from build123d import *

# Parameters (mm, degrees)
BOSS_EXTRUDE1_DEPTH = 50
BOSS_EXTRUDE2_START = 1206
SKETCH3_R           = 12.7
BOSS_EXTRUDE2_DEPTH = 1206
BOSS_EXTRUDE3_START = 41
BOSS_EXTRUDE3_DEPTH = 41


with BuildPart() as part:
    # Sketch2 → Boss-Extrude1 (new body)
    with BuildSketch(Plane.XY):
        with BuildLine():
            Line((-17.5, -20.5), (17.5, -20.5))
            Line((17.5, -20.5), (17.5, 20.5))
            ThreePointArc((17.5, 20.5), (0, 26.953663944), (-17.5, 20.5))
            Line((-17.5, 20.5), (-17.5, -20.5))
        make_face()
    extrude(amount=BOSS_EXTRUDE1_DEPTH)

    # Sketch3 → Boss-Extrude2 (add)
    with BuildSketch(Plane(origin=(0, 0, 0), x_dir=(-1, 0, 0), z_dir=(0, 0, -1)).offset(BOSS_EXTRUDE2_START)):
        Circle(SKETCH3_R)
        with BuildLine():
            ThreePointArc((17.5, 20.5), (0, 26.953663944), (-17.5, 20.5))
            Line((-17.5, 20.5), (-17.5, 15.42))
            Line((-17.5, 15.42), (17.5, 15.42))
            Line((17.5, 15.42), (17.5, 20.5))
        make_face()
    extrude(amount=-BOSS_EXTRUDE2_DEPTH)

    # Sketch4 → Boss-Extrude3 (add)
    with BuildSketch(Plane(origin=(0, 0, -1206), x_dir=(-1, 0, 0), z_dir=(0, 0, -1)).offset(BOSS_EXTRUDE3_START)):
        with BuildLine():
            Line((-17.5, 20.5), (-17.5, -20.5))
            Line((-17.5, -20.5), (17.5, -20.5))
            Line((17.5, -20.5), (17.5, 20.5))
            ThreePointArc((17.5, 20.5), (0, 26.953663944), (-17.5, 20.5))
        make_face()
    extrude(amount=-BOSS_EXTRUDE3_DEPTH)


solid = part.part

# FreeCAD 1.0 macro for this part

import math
import FreeCAD as App
import Part
import Sketcher

V = App.Vector
Q = App.Units.Quantity

doc = App.newDocument("Part")
params = doc.addObject("Spreadsheet::Sheet", "Params")
for row, (alias, value) in enumerate([
    ("sketch1_width", "35 mm"),
    ("sketch1_height", "41 mm"),
    ("pad1_length", "50 mm"),
    ("sketch2_diameter", "25.4 mm"),
    ("sketch2_width", "35 mm"),
    ("sketch2_height", "5.08 mm"),
    ("pad2_length", "1206 mm"),
    ("sketch3_width", "35 mm"),
    ("sketch3_height", "41 mm"),
    ("pad3_length", "41 mm"),
], start=1):
    params.set(f"A{row}", alias)
    params.set(f"B{row}", "=" + value)
    params.setAlias(f"B{row}", alias)

body = doc.addObject("PartDesign::Body", "Body")

sketch1 = body.newObject("Sketcher::SketchObject", "Sketch")
sketch1.AttachmentSupport = (doc.getObject("XY_Plane"), [""])
sketch1.MapMode = "FlatFace"
sketch1.addGeometry(Part.LineSegment(V(-17.5, -20.5, 0), V(17.5, -20.5, 0)), False)
sketch1.addGeometry(Part.LineSegment(V(17.5, -20.5, 0), V(17.5, 20.5, 0)), False)
sketch1.addGeometry(Part.ArcOfCircle(Part.Circle(V(0, 0, 0), V(0, 0, 1), 26.953664), math.radians(49.513988), math.radians(130.486012)), False)
sketch1.addGeometry(Part.LineSegment(V(-17.5, 20.5, 0), V(-17.5, -20.5, 0)), False)
sketch1.addConstraint(Sketcher.Constraint("Coincident", 0, 2, 1, 1))
sketch1.addConstraint(Sketcher.Constraint("Coincident", 1, 2, 2, 1))
sketch1.addConstraint(Sketcher.Constraint("Coincident", 2, 2, 3, 1))
sketch1.addConstraint(Sketcher.Constraint("Coincident", 3, 2, 0, 1))
sketch1.addConstraint(Sketcher.Constraint("Horizontal", 0))
sketch1.addConstraint(Sketcher.Constraint("Vertical", 1))
sketch1.addConstraint(Sketcher.Constraint("Vertical", 3))
sketch1.addConstraint(Sketcher.Constraint("Coincident", 2, 3, -1, 1))
sketch1.addConstraint(Sketcher.Constraint("Symmetric", 0, 2, 2, 2, -1, 1))
sketch1.addConstraint(Sketcher.Constraint("DistanceX", 0, 1, 0, 2, Q("35 mm")))
sketch1.addConstraint(Sketcher.Constraint("DistanceY", 1, 1, 1, 2, Q("41 mm")))
sketch1.setExpression("Constraints[9]", "Params.sketch1_width")
sketch1.setExpression("Constraints[10]", "Params.sketch1_height")
pad1 = body.newObject("PartDesign::Pad", "Pad")
pad1.Profile = sketch1
pad1.setExpression("Length", "Params.pad1_length")

sketch2 = body.newObject("Sketcher::SketchObject", "Sketch001")
sketch2.AttachmentSupport = (doc.getObject("XY_Plane"), [""])
sketch2.MapMode = "FlatFace"
sketch2.AttachmentOffset = App.Placement(V(0, 0, -1206), App.Rotation())
sketch2.addGeometry(Part.Circle(V(0, 0, 0), V(0, 0, 1), 12.7), False)
sketch2.addGeometry(Part.ArcOfCircle(Part.Circle(V(0, 0, 0), V(0, 0, 1), 26.953664), math.radians(49.513988), math.radians(130.486012)), False)
sketch2.addGeometry(Part.LineSegment(V(17.5, 20.5, 0), V(17.5, 15.42, 0)), False)
sketch2.addGeometry(Part.LineSegment(V(17.5, 15.42, 0), V(-17.5, 15.42, 0)), False)
sketch2.addGeometry(Part.LineSegment(V(-17.5, 15.42, 0), V(-17.5, 20.5, 0)), False)
sketch2.addConstraint(Sketcher.Constraint("Coincident", 1, 1, 2, 1))
sketch2.addConstraint(Sketcher.Constraint("Coincident", 2, 2, 3, 1))
sketch2.addConstraint(Sketcher.Constraint("Coincident", 3, 2, 4, 1))
sketch2.addConstraint(Sketcher.Constraint("Coincident", 4, 2, 1, 2))
sketch2.addConstraint(Sketcher.Constraint("Vertical", 2))
sketch2.addConstraint(Sketcher.Constraint("Horizontal", 3))
sketch2.addConstraint(Sketcher.Constraint("Vertical", 4))
sketch2.addConstraint(Sketcher.Constraint("Coincident", 0, 3, -1, 1))
sketch2.addConstraint(Sketcher.Constraint("Coincident", 1, 3, -1, 1))
sketch2.addConstraint(Sketcher.Constraint("Horizontal", 1, 1, 4, 2))
sketch2.addConstraint(Sketcher.Constraint("Diameter", 0, Q("25.4 mm")))
sketch2.addConstraint(Sketcher.Constraint("DistanceX", 3, 2, 3, 1, Q("35 mm")))
sketch2.addConstraint(Sketcher.Constraint("DistanceY", 2, 2, 2, 1, Q("5.08 mm")))
sketch2.addConstraint(Sketcher.Constraint("DistanceY", -1, 1, 1, 1, Q("20.5 mm")))
sketch2.setExpression("Constraints[10]", "Params.sketch2_diameter")
sketch2.setExpression("Constraints[11]", "Params.sketch2_width")
sketch2.setExpression("Constraints[12]", "Params.sketch2_height")
pad2 = body.newObject("PartDesign::Pad", "Pad001")
pad2.Profile = sketch2
pad2.setExpression("Length", "Params.pad2_length")

sketch3 = body.newObject("Sketcher::SketchObject", "Sketch002")
sketch3.AttachmentSupport = (doc.getObject("XY_Plane"), [""])
sketch3.MapMode = "FlatFace"
sketch3.AttachmentOffset = App.Placement(V(0, 0, -1247), App.Rotation())
sketch3.addGeometry(Part.LineSegment(V(17.5, 20.5, 0), V(17.5, -20.5, 0)), False)
sketch3.addGeometry(Part.LineSegment(V(17.5, -20.5, 0), V(-17.5, -20.5, 0)), False)
sketch3.addGeometry(Part.LineSegment(V(-17.5, -20.5, 0), V(-17.5, 20.5, 0)), False)
sketch3.addGeometry(Part.ArcOfCircle(Part.Circle(V(0, 0, 0), V(0, 0, 1), 26.953664), math.radians(49.513988), math.radians(130.486012)), False)
sketch3.addConstraint(Sketcher.Constraint("Coincident", 0, 2, 1, 1))
sketch3.addConstraint(Sketcher.Constraint("Coincident", 1, 2, 2, 1))
sketch3.addConstraint(Sketcher.Constraint("Coincident", 2, 2, 3, 2))
sketch3.addConstraint(Sketcher.Constraint("Coincident", 3, 1, 0, 1))
sketch3.addConstraint(Sketcher.Constraint("Vertical", 0))
sketch3.addConstraint(Sketcher.Constraint("Horizontal", 1))
sketch3.addConstraint(Sketcher.Constraint("Vertical", 2))
sketch3.addConstraint(Sketcher.Constraint("Coincident", 3, 3, -1, 1))
sketch3.addConstraint(Sketcher.Constraint("Symmetric", 0, 2, 2, 2, -1, 1))
sketch3.addConstraint(Sketcher.Constraint("DistanceX", 1, 2, 1, 1, Q("35 mm")))
sketch3.addConstraint(Sketcher.Constraint("DistanceY", 0, 2, 0, 1, Q("41 mm")))
sketch3.setExpression("Constraints[9]", "Params.sketch3_width")
sketch3.setExpression("Constraints[10]", "Params.sketch3_height")
pad3 = body.newObject("PartDesign::Pad", "Pad002")
pad3.Profile = sketch3
pad3.setExpression("Length", "Params.pad3_length")

doc.recompute()
